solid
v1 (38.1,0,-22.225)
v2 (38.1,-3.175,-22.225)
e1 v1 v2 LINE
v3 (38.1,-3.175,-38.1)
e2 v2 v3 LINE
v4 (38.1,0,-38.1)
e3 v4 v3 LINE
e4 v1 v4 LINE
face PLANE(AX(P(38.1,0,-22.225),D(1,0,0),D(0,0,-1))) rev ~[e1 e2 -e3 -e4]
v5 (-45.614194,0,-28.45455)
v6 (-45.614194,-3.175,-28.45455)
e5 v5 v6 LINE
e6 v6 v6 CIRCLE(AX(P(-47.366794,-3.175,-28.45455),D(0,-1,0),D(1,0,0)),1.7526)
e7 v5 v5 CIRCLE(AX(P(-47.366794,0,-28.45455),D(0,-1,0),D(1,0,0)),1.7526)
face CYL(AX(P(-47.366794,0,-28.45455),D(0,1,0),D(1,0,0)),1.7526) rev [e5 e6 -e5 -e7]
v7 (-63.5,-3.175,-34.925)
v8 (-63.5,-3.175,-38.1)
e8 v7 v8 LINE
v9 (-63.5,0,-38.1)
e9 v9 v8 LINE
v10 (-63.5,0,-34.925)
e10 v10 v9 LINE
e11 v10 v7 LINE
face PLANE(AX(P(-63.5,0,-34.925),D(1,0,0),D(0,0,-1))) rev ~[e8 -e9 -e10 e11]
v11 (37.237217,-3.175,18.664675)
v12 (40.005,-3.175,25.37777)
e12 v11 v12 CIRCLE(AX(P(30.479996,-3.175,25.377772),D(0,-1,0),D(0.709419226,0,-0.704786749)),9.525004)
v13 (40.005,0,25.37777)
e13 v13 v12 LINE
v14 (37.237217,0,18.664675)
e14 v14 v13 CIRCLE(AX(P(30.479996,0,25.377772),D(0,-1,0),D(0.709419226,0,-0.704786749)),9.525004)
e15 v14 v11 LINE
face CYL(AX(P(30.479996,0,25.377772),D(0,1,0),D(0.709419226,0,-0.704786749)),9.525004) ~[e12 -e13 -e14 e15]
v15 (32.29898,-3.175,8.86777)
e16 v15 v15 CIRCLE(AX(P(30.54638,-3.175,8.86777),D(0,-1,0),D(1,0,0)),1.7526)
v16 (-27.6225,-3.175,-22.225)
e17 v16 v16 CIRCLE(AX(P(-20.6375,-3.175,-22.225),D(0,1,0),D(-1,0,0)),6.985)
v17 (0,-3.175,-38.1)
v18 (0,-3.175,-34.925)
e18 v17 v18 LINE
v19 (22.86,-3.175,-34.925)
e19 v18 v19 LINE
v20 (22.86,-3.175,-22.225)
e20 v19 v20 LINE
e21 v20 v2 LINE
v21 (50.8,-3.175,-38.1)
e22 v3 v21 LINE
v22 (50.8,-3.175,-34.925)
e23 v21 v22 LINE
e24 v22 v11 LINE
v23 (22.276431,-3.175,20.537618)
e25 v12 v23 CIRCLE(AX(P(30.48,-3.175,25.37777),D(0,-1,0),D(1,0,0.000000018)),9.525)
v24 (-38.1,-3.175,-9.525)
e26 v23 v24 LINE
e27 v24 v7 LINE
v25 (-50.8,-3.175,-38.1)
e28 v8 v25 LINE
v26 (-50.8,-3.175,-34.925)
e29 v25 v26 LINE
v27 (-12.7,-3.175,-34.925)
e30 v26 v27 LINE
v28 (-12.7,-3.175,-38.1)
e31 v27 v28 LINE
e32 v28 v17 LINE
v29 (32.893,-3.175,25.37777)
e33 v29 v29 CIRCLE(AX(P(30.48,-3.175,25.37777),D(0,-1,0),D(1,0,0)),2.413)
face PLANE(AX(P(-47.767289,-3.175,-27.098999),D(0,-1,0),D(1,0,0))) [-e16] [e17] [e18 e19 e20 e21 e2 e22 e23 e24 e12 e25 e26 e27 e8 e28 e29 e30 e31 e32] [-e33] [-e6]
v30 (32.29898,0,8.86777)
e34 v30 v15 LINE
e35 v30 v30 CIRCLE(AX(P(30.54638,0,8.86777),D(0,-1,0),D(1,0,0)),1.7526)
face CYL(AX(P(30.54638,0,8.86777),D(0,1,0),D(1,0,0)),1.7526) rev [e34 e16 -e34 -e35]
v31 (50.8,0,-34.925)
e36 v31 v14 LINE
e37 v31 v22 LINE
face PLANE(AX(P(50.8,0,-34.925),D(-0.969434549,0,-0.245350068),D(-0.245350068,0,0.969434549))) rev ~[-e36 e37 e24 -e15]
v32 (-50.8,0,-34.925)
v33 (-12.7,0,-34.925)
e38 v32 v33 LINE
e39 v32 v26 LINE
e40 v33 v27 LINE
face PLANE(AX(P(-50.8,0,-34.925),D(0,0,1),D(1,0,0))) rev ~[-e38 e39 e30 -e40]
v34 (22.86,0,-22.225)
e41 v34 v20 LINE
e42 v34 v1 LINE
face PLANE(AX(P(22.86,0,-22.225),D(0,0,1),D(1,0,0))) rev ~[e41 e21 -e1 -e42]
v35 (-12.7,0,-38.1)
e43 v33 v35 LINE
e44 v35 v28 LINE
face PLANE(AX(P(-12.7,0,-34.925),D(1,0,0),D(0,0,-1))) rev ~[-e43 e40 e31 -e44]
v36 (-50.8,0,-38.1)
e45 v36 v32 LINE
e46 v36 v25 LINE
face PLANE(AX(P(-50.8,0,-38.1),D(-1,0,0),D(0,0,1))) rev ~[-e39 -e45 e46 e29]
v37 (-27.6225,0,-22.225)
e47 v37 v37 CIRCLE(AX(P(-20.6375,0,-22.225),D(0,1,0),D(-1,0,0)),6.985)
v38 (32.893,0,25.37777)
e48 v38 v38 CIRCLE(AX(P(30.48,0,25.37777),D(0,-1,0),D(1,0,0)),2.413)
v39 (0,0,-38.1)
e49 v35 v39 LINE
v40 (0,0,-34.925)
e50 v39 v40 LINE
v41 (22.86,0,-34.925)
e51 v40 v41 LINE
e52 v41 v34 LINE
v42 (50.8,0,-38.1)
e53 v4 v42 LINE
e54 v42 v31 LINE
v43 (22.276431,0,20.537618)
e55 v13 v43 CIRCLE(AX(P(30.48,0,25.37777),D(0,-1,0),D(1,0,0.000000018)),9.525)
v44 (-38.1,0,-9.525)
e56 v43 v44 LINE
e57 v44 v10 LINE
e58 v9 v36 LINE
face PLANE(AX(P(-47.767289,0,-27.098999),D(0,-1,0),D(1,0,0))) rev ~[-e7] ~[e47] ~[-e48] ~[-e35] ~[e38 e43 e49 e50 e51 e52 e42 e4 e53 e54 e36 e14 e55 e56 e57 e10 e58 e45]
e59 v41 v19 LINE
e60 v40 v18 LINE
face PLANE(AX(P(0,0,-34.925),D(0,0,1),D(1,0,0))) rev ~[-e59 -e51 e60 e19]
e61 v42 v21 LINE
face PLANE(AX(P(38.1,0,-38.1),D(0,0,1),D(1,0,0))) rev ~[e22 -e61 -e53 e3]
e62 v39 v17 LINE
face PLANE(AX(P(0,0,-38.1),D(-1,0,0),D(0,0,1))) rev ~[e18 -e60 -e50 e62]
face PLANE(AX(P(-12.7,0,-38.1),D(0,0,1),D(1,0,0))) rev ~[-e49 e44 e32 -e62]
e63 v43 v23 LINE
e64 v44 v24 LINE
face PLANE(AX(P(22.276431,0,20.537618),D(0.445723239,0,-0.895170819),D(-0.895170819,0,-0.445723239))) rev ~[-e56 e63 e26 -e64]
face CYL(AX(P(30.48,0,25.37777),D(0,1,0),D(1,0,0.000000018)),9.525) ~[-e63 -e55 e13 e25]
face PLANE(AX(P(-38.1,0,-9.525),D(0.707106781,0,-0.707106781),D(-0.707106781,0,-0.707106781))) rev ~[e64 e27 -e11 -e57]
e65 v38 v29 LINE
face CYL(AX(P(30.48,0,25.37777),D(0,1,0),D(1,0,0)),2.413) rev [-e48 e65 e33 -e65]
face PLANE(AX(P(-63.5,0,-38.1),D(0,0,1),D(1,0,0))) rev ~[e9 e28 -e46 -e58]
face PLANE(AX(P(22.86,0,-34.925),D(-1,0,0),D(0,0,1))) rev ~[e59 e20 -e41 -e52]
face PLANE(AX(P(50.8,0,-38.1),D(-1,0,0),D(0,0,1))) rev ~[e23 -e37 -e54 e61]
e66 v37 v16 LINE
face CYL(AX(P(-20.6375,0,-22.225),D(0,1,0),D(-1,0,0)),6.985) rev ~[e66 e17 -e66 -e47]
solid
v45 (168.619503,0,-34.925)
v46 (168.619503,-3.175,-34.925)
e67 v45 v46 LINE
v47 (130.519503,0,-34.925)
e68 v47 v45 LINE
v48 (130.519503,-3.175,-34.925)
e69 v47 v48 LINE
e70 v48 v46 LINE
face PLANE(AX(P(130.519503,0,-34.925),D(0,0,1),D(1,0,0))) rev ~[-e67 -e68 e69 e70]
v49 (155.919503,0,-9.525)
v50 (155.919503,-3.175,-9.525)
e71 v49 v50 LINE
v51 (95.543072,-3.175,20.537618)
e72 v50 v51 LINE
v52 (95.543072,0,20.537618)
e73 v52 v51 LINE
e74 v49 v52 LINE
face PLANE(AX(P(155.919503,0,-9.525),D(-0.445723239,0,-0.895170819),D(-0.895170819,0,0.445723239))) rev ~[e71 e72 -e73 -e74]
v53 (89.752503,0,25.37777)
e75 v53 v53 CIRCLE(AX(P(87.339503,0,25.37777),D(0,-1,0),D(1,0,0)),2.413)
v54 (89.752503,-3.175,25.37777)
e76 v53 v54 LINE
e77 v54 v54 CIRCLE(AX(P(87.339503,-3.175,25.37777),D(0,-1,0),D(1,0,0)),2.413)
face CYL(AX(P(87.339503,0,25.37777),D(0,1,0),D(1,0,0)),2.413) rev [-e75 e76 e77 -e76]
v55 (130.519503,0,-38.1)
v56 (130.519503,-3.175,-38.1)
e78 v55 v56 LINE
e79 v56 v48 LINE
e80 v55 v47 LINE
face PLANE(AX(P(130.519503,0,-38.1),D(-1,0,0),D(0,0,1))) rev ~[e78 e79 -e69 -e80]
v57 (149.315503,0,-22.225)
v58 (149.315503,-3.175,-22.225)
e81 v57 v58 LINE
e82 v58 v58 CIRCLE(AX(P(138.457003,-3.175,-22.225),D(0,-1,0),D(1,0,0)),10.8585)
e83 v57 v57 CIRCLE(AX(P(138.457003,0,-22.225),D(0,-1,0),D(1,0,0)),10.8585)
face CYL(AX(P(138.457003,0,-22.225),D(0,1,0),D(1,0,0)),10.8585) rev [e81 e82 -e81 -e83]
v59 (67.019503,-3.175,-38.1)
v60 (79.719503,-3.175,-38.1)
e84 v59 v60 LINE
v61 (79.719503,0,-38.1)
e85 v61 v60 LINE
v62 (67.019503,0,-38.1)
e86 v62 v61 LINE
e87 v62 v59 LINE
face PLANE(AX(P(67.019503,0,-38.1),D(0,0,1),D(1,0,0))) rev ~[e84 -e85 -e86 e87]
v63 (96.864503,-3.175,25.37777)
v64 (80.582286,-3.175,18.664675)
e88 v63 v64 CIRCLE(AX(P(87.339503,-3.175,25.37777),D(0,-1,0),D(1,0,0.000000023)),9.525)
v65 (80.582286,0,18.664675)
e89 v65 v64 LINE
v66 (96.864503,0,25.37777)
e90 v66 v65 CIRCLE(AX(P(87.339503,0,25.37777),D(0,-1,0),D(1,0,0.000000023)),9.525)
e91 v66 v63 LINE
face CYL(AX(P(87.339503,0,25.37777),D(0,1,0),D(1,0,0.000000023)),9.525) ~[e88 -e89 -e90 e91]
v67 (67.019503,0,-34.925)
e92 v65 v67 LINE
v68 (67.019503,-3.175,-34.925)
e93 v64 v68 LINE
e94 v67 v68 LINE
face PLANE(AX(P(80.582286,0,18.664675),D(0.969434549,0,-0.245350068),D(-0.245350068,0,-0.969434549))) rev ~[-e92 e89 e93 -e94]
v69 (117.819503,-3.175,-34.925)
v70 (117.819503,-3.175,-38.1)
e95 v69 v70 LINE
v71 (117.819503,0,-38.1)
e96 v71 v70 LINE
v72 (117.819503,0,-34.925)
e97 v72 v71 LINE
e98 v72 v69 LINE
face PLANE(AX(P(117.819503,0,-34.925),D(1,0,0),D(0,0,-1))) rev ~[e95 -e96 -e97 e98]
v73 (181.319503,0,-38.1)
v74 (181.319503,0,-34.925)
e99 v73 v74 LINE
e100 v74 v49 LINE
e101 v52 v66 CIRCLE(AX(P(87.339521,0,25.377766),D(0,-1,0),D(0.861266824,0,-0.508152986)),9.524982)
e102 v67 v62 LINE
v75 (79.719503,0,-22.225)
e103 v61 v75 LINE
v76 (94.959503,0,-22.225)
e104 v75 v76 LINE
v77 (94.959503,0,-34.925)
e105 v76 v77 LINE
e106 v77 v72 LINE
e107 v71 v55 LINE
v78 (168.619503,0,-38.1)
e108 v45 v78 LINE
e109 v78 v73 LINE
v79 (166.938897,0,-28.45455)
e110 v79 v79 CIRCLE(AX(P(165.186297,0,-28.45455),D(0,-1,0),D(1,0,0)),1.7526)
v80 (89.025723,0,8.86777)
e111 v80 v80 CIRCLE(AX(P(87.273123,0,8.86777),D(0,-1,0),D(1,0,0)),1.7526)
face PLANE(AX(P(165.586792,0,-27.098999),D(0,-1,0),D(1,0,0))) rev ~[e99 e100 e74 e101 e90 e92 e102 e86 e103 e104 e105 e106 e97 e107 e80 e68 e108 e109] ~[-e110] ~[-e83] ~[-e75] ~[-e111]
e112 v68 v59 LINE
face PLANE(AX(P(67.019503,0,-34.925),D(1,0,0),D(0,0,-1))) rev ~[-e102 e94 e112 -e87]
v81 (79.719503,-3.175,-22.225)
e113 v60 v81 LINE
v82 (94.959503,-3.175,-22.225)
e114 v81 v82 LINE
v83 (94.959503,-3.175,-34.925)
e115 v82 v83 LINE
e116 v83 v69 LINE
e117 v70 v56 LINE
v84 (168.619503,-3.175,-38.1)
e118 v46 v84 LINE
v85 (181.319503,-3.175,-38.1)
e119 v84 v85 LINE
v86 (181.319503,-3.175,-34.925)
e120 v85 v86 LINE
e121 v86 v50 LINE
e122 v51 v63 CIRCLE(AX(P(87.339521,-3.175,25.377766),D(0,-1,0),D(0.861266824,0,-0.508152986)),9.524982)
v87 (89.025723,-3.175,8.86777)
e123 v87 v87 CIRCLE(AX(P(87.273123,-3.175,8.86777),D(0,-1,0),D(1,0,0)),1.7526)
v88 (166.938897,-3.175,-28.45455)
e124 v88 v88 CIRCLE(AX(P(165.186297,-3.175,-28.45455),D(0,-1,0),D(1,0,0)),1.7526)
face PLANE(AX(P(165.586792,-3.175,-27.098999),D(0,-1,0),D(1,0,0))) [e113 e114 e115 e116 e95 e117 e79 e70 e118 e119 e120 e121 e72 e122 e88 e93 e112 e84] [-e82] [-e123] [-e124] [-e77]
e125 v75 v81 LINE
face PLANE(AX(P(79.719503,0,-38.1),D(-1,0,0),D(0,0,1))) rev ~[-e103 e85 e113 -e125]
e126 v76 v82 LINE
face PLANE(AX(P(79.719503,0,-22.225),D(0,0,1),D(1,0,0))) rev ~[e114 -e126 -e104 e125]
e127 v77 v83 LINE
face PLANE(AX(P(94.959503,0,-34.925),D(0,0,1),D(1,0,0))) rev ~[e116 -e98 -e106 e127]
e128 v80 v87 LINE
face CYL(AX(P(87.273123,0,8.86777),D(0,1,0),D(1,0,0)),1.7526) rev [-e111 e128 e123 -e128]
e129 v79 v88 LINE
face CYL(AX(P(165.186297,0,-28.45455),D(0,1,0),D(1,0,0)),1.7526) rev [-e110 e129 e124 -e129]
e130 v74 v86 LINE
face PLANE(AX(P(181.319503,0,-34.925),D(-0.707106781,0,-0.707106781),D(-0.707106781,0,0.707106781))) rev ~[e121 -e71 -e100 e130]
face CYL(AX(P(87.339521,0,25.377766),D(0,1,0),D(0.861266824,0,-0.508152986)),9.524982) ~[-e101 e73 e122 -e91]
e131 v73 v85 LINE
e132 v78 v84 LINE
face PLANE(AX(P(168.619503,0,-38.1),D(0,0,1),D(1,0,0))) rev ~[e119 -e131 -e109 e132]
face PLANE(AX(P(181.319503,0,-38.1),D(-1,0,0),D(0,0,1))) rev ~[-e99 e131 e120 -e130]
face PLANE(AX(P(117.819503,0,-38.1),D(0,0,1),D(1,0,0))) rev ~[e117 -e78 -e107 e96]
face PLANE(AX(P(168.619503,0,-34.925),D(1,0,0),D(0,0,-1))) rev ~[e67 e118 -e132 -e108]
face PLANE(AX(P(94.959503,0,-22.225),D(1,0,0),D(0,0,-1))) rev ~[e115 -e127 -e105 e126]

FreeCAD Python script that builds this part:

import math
import FreeCAD as App
import Part
import Sketcher
Q = App.Units.Quantity

doc = App.newDocument("Part")
body = doc.addObject("PartDesign::Body", "Body")
body.AllowCompound = True

# Sketch on XZ plane
sketch1 = body.newObject("Sketcher::SketchObject", "Sketch")
sketch1.AttachmentSupport = (doc.getObject("XZ_Plane"), [""])
sketch1.MapMode = "FlatFace"
sketch1.addGeometry([
    Part.LineSegment(App.Vector(-50.8, -38.1, 0), App.Vector(-50.8, -34.925, 0)),  # 0
    Part.LineSegment(App.Vector(-50.8, -34.925, 0), App.Vector(-12.7, -34.925, 0)),  # 1
    Part.LineSegment(App.Vector(-12.7, -34.925, 0), App.Vector(-12.7, -38.1, 0)),  # 2
    Part.LineSegment(App.Vector(-12.7, -38.1, 0), App.Vector(0, -38.1, 0)),  # 3
    Part.LineSegment(App.Vector(0, -38.1, 0), App.Vector(0, -34.925, 0)),  # 4
    Part.LineSegment(App.Vector(0, -34.925, 0), App.Vector(22.86, -34.925, 0)),  # 5
    Part.LineSegment(App.Vector(22.86, -34.925, 0), App.Vector(22.86, -22.225, 0)),  # 6
    Part.LineSegment(App.Vector(22.86, -22.225, 0), App.Vector(38.1, -22.225, 0)),  # 7
    Part.LineSegment(App.Vector(38.1, -22.225, 0), App.Vector(38.1, -38.1, 0)),  # 8
    Part.LineSegment(App.Vector(38.1, -38.1, 0), App.Vector(50.8, -38.1, 0)),  # 9
    Part.LineSegment(App.Vector(50.8, -38.1, 0), App.Vector(50.8, -34.925, 0)),  # 10
    Part.LineSegment(App.Vector(50.8, -34.925, 0), App.Vector(37.237217, 18.664675, 0)),  # 11
    Part.ArcOfCircle(Part.Circle(App.Vector(30.479996, 25.377772, 0), App.Vector(0, 0, 1), 9.525004), math.radians(-44.812318), math.radians(-0.000009)),  # 12
    Part.ArcOfCircle(Part.Circle(App.Vector(30.48, 25.37777, 0), App.Vector(0, 0, 1), 9.525), math.radians(0.000001), math.radians(210.540843)),  # 13
    Part.LineSegment(App.Vector(22.276431, 20.537618, 0), App.Vector(-38.1, -9.525, 0)),  # 14
    Part.LineSegment(App.Vector(-38.1, -9.525, 0), App.Vector(-63.5, -34.925, 0)),  # 15
    Part.LineSegment(App.Vector(-63.5, -34.925, 0), App.Vector(-63.5, -38.1, 0)),  # 16
    Part.LineSegment(App.Vector(-63.5, -38.1, 0), App.Vector(-50.8, -38.1, 0)),  # 17
    Part.Circle(App.Vector(-47.366794, -28.45455, 0), App.Vector(0, 0, 1), 1.7526),  # 18
    Part.Circle(App.Vector(-20.6375, -22.225, 0), App.Vector(0, 0, 1), 6.985),  # 19
    Part.Circle(App.Vector(30.54638, 8.86777, 0), App.Vector(0, 0, 1), 1.7526),  # 20
    Part.Circle(App.Vector(30.48, 25.37777, 0), App.Vector(0, 0, 1), 2.413),  # 21
    Part.LineSegment(App.Vector(181.319503, -38.1, 0), App.Vector(181.319503, -34.925, 0)),  # 22
    Part.LineSegment(App.Vector(181.319503, -34.925, 0), App.Vector(155.919503, -9.525, 0)),  # 23
    Part.LineSegment(App.Vector(155.919503, -9.525, 0), App.Vector(95.543072, 20.537618, 0)),  # 24
    Part.ArcOfCircle(Part.Circle(App.Vector(87.339521, 25.377766, 0), App.Vector(0, 0, 1), 9.524982), math.radians(-30.540879), math.radians(0.000024)),  # 25
    Part.ArcOfCircle(Part.Circle(App.Vector(87.339503, 25.37777, 0), App.Vector(0, 0, 1), 9.525), math.radians(0.000001), math.radians(224.812327)),  # 26
    Part.LineSegment(App.Vector(80.582286, 18.664675, 0), App.Vector(67.019503, -34.925, 0)),  # 27
    Part.LineSegment(App.Vector(67.019503, -34.925, 0), App.Vector(67.019503, -38.1, 0)),  # 28
    Part.LineSegment(App.Vector(67.019503, -38.1, 0), App.Vector(79.719503, -38.1, 0)),  # 29
    Part.LineSegment(App.Vector(79.719503, -38.1, 0), App.Vector(79.719503, -22.225, 0)),  # 30
    Part.LineSegment(App.Vector(79.719503, -22.225, 0), App.Vector(94.959503, -22.225, 0)),  # 31
    Part.LineSegment(App.Vector(94.959503, -22.225, 0), App.Vector(94.959503, -34.925, 0)),  # 32
    Part.LineSegment(App.Vector(94.959503, -34.925, 0), App.Vector(117.819503, -34.925, 0)),  # 33
    Part.LineSegment(App.Vector(117.819503, -34.925, 0), App.Vector(117.819503, -38.1, 0)),  # 34
    Part.LineSegment(App.Vector(117.819503, -38.1, 0), App.Vector(130.519503, -38.1, 0)),  # 35
    Part.LineSegment(App.Vector(130.519503, -38.1, 0), App.Vector(130.519503, -34.925, 0)),  # 36
    Part.LineSegment(App.Vector(130.519503, -34.925, 0), App.Vector(168.619503, -34.925, 0)),  # 37
    Part.LineSegment(App.Vector(168.619503, -34.925, 0), App.Vector(168.619503, -38.1, 0)),  # 38
    Part.LineSegment(App.Vector(168.619503, -38.1, 0), App.Vector(181.319503, -38.1, 0)),  # 39
    Part.Circle(App.Vector(138.457003, -22.225, 0), App.Vector(0, 0, 1), 10.8585),  # 40
    Part.Circle(App.Vector(165.186297, -28.45455, 0), App.Vector(0, 0, 1), 1.7526),  # 41
    Part.Circle(App.Vector(87.273123, 8.86777, 0), App.Vector(0, 0, 1), 1.7526),  # 42
    Part.Circle(App.Vector(87.339503, 25.37777, 0), App.Vector(0, 0, 1), 2.413),  # 43
], False)
sketch1.addConstraint([
    Sketcher.Constraint("Coincident", 0, 2, 1, 1),
    Sketcher.Constraint("Coincident", 1, 2, 2, 1),
    Sketcher.Constraint("Coincident", 2, 2, 3, 1),
    Sketcher.Constraint("Coincident", 3, 2, 4, 1),
    Sketcher.Constraint("Coincident", 4, 2, 5, 1),
    Sketcher.Constraint("Coincident", 5, 2, 6, 1),
    Sketcher.Constraint("Coincident", 6, 2, 7, 1),
    Sketcher.Constraint("Coincident", 7, 2, 8, 1),
    Sketcher.Constraint("Coincident", 8, 2, 9, 1),
    Sketcher.Constraint("Coincident", 9, 2, 10, 1),
    Sketcher.Constraint("Coincident", 10, 2, 11, 1),
    Sketcher.Constraint("Coincident", 11, 2, 12, 1),
    Sketcher.Constraint("Coincident", 12, 2, 13, 1),
    Sketcher.Constraint("Coincident", 13, 2, 14, 1),
    Sketcher.Constraint("Coincident", 14, 2, 15, 1),
    Sketcher.Constraint("Coincident", 15, 2, 16, 1),
    Sketcher.Constraint("Coincident", 16, 2, 17, 1),
    Sketcher.Constraint("Coincident", 17, 2, 0, 1),
    Sketcher.Constraint("Coincident", 22, 2, 23, 1),
    Sketcher.Constraint("Coincident", 23, 2, 24, 1),
    Sketcher.Constraint("Coincident", 24, 2, 25, 1),
    Sketcher.Constraint("Coincident", 25, 2, 26, 1),
    Sketcher.Constraint("Coincident", 26, 2, 27, 1),
    Sketcher.Constraint("Coincident", 27, 2, 28, 1),
    Sketcher.Constraint("Coincident", 28, 2, 29, 1),
    Sketcher.Constraint("Coincident", 29, 2, 30, 1),
    Sketcher.Constraint("Coincident", 30, 2, 31, 1),
    Sketcher.Constraint("Coincident", 31, 2, 32, 1),
    Sketcher.Constraint("Coincident", 32, 2, 33, 1),
    Sketcher.Constraint("Coincident", 33, 2, 34, 1),
    Sketcher.Constraint("Coincident", 34, 2, 35, 1),
    Sketcher.Constraint("Coincident", 35, 2, 36, 1),
    Sketcher.Constraint("Coincident", 36, 2, 37, 1),
    Sketcher.Constraint("Coincident", 37, 2, 38, 1),
    Sketcher.Constraint("Coincident", 38, 2, 39, 1),
    Sketcher.Constraint("Coincident", 39, 2, 22, 1),
    Sketcher.Constraint("Vertical", 0),
    Sketcher.Constraint("Horizontal", 1),
    Sketcher.Constraint("Vertical", 2),
    Sketcher.Constraint("Horizontal", 3),
    Sketcher.Constraint("Vertical", 4),
    Sketcher.Constraint("Horizontal", 5),
    Sketcher.Constraint("Vertical", 6),
    Sketcher.Constraint("Horizontal", 7),
    Sketcher.Constraint("Vertical", 8),
    Sketcher.Constraint("Horizontal", 9),
    Sketcher.Constraint("Vertical", 10),
    Sketcher.Constraint("Vertical", 16),
    Sketcher.Constraint("Horizontal", 17),
    Sketcher.Constraint("Vertical", 22),
    Sketcher.Constraint("Vertical", 28),
    Sketcher.Constraint("Horizontal", 29),
    Sketcher.Constraint("Vertical", 30),
    Sketcher.Constraint("Horizontal", 31),
    Sketcher.Constraint("Vertical", 32),
    Sketcher.Constraint("Horizontal", 33),
    Sketcher.Constraint("Vertical", 34),
    Sketcher.Constraint("Horizontal", 35),
    Sketcher.Constraint("Vertical", 36),
    Sketcher.Constraint("Horizontal", 37),
    Sketcher.Constraint("Vertical", 38),
    Sketcher.Constraint("Horizontal", 39),
    Sketcher.Constraint("Coincident", 13, 3, 12, 3),
    Sketcher.Constraint("Coincident", 21, 3, 12, 3),
    Sketcher.Constraint("Coincident", 43, 3, 26, 3),
    Sketcher.Constraint("PointOnObject", 3, 2, -2),
    Sketcher.Constraint("Diameter", 19, Q("0.55 in")),
    Sketcher.Constraint("Diameter", 21, Q("0.19 in")),
    Sketcher.Constraint("Diameter", 43, Q("0.19 in")),
    Sketcher.Constraint("Diameter", 18, Q("0.138 in")),
    Sketcher.Constraint("Diameter", 20, Q("0.138 in")),
    Sketcher.Constraint("Diameter", 40, Q("0.855 in")),
    Sketcher.Constraint("Diameter", 41, Q("0.138 in")),
    Sketcher.Constraint("Diameter", 42, Q("0.138 in")),
    Sketcher.Constraint("DistanceX", 1, 1, 1, 2, Q("1.5 in")),
    Sketcher.Constraint("DistanceX", 3, 1, 3, 2, Q("0.5 in")),
    Sketcher.Constraint("DistanceX", 5, 1, 5, 2, Q("0.9 in")),
    Sketcher.Constraint("DistanceX", 7, 1, 7, 2, Q("0.6 in")),
    Sketcher.Constraint("DistanceX", 9, 1, 9, 2, Q("0.5 in")),
    Sketcher.Constraint("DistanceX", 17, 1, 17, 2, Q("0.5 in")),
    Sketcher.Constraint("DistanceX", 29, 1, 29, 2, Q("0.5 in")),
    Sketcher.Constraint("DistanceX", 31, 1, 31, 2, Q("0.6 in")),
    Sketcher.Constraint("DistanceX", 33, 1, 33, 2, Q("0.9 in")),
    Sketcher.Constraint("DistanceX", 35, 1, 35, 2, Q("0.5 in")),
    Sketcher.Constraint("DistanceX", 37, 1, 37, 2, Q("1.5 in")),
    Sketcher.Constraint("DistanceX", 39, 1, 39, 2, Q("0.5 in")),
    Sketcher.Constraint("DistanceY", 6, 1, 6, 2, Q("0.5 in")),
    Sketcher.Constraint("DistanceY", 32, 2, 32, 1, Q("0.5 in")),
    Sketcher.Constraint("Radius", 12, Q("0.3750002 in")),
    Sketcher.Constraint("Radius", 26, Q("0.375 in")),
    Sketcher.Constraint("DistanceY", 0, 2, 14, 2, Q("1 in")),
    Sketcher.Constraint("DistanceX", 14, 2, 1, 2, Q("1 in")),
    Sketcher.Constraint("DistanceY", 15, 2, 14, 2, Q("1 in")),
    Sketcher.Constraint("DistanceX", 23, 2, 22, 2, Q("1 in")),
    Sketcher.Constraint("DistanceY", 22, 2, 23, 2, Q("1 in")),
    Sketcher.Constraint("DistanceY", 37, 2, 23, 2, Q("1 in")),
    Sketcher.Constraint("DistanceX", -1, 1, 12, 3, Q("1.1999998 in")),
    Sketcher.Constraint("DistanceY", 2, 2, -1, 1, Q("1.5 in")),
    Sketcher.Constraint("DistanceY", 8, 2, -1, 1, Q("1.5 in")),
    Sketcher.Constraint("DistanceY", 16, 2, -1, 1, Q("1.5 in")),
    Sketcher.Constraint("DistanceY", 28, 2, -1, 1, Q("1.5 in")),
    Sketcher.Constraint("DistanceY", 34, 2, -1, 1, Q("1.5 in")),
    Sketcher.Constraint("DistanceY", 38, 2, -1, 1, Q("1.5 in")),
    Sketcher.Constraint("DistanceY", 0, 2, 19, 3, Q("0.5 in")),
    Sketcher.Constraint("DistanceY", 4, 2, 19, 3, Q("0.5 in")),
    Sketcher.Constraint("DistanceY", 10, 2, 7, 2, Q("0.5 in")),
    Sketcher.Constraint("DistanceY", 22, 2, 40, 3, Q("0.5 in")),
    Sketcher.Constraint("DistanceX", 26, 3, 22, 2, Q("3.7 in")),
    Sketcher.Constraint("DistanceY", 27, 2, 7, 2, Q("0.5 in")),
    Sketcher.Constraint("DistanceY", 27, 2, 30, 2, Q("0.5 in")),
    Sketcher.Constraint("DistanceY", 33, 2, 40, 3, Q("0.5 in")),
    Sketcher.Constraint("DistanceY", 0, 1, 0, 2, Q("0.125 in")),
    Sketcher.Constraint("DistanceY", 20, 3, 13, 3, Q("0.65 in")),
    Sketcher.Constraint("DistanceY", 20, 3, 25, 3, Q("0.6499998 in")),
    Sketcher.Constraint("DistanceY", 20, 3, 26, 3, Q("0.65 in")),
    Sketcher.Constraint("DistanceY", 42, 3, 25, 3, Q("0.6499998 in")),
    Sketcher.Constraint("DistanceY", 20, 3, 12, 2, Q("0.65 in")),
    Sketcher.Constraint("DistanceY", 42, 3, 25, 2, Q("0.65 in")),
    Sketcher.Constraint("DistanceX", 19, 3, -1, 1, Q("0.8125 in")),
    Sketcher.Constraint("Radius", 25, 9.524982),
    Sketcher.Constraint("DistanceX", 40, 3, 22, 2, Q("1.6875 in")),
    Sketcher.Constraint("DistanceX", 42, 3, 25, 3, 0.066398),
    Sketcher.Constraint("DistanceY", -1, 1, 12, 3, 25.377772),
    Sketcher.Constraint("DistanceY", 18, 3, -1, 1, 28.45455),
    Sketcher.Constraint("DistanceX", -1, 1, 20, 3, 30.54638),
    Sketcher.Constraint("DistanceX", -1, 1, 25, 3, 87.339521),
    Sketcher.Constraint("DistanceY", 41, 3, -1, 1, 28.45455),
    Sketcher.Constraint("DistanceX", -1, 1, 13, 2, 22.276431),
    Sketcher.Constraint("DistanceX", -1, 1, 24, 2, 95.543072),
    Sketcher.Constraint("DistanceX", 18, 3, 12, 3, 77.84679),
    Sketcher.Constraint("DistanceX", 12, 3, 11, 2, 6.757221),
    Sketcher.Constraint("DistanceY", 26, 2, 25, 3, 6.713091),
    Sketcher.Constraint("DistanceX", -1, 1, 41, 3, 165.186297),
])
pad1 = body.newObject("PartDesign::Pad", "Pad")
pad1.Profile = sketch1
pad1.Length = Q("0.125 in")

doc.recompute()
